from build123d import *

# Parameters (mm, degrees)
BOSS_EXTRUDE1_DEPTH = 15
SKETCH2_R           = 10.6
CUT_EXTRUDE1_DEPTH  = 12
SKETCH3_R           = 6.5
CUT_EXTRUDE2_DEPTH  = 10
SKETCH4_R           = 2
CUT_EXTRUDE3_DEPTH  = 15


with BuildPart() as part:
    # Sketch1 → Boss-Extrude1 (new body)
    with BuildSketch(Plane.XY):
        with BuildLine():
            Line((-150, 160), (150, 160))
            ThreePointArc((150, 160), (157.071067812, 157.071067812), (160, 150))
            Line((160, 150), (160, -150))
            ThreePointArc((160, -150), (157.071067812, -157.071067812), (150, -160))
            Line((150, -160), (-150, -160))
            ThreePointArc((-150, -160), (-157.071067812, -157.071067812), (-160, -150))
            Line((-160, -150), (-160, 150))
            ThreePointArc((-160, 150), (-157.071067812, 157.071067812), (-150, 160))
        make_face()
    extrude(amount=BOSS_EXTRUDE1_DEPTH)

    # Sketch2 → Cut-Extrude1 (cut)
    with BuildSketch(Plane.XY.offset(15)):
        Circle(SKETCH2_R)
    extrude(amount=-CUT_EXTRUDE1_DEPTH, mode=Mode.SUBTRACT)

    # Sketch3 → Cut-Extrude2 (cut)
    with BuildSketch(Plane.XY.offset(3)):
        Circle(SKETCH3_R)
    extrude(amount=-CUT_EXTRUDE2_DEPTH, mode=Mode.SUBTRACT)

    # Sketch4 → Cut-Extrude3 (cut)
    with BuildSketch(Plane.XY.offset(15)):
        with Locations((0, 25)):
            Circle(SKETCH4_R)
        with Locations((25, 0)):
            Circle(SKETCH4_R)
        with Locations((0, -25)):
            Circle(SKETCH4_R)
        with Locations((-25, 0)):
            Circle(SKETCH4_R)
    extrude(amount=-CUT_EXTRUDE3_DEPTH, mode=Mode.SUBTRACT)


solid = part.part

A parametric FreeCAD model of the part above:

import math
import FreeCAD as App
import Part
import Sketcher

V = App.Vector
Q = App.Units.Quantity

doc = App.newDocument("Part")
body = doc.addObject("PartDesign::Body", "Body")

# Sketch on XY plane
sketch1 = body.newObject("Sketcher::SketchObject", "Sketch")
sketch1.AttachmentSupport = (doc.getObject("XY_Plane"), [""])
sketch1.MapMode = "FlatFace"
sketch1.addGeometry(Part.LineSegment(V(150, 160, 0), V(-150, 160, 0)), False)
sketch1.addGeometry(Part.ArcOfCircle(Part.Circle(V(-150, 150, 0), V(0, 0, 1), 10), math.radians(90), math.radians(180)), False)
sketch1.addGeometry(Part.LineSegment(V(-160, 150, 0), V(-160, -150, 0)), False)
sketch1.addGeometry(Part.ArcOfCircle(Part.Circle(V(-150, -150, 0), V(0, 0, 1), 10), math.radians(180), math.radians(270)), False)
sketch1.addGeometry(Part.LineSegment(V(-150, -160, 0), V(150, -160, 0)), False)
sketch1.addGeometry(Part.ArcOfCircle(Part.Circle(V(150, -150, 0), V(0, 0, 1), 10), math.radians(-90), math.radians(0)), False)
sketch1.addGeometry(Part.LineSegment(V(160, -150, 0), V(160, 150, 0)), False)
sketch1.addGeometry(Part.ArcOfCircle(Part.Circle(V(150, 150, 0), V(0, 0, 1), 10), math.radians(0), math.radians(90)), False)
sketch1.addConstraint(Sketcher.Constraint("Tangent", 0, 2, 1, 1))
sketch1.addConstraint(Sketcher.Constraint("Tangent", 1, 2, 2, 1))
sketch1.addConstraint(Sketcher.Constraint("Tangent", 2, 2, 3, 1))
sketch1.addConstraint(Sketcher.Constraint("Tangent", 3, 2, 4, 1))
sketch1.addConstraint(Sketcher.Constraint("Tangent", 4, 2, 5, 1))
sketch1.addConstraint(Sketcher.Constraint("Tangent", 5, 2, 6, 1))
sketch1.addConstraint(Sketcher.Constraint("Tangent", 6, 2, 7, 1))
sketch1.addConstraint(Sketcher.Constraint("Tangent", 7, 2, 0, 1))
sketch1.addConstraint(Sketcher.Constraint("Horizontal", 0))
sketch1.addConstraint(Sketcher.Constraint("Vertical", 2))
sketch1.addConstraint(Sketcher.Constraint("Horizontal", 4))
sketch1.addConstraint(Sketcher.Constraint("Vertical", 6))
sketch1.addConstraint(Sketcher.Constraint("Equal", 1, 3))
sketch1.addConstraint(Sketcher.Constraint("Equal", 3, 5))
sketch1.addConstraint(Sketcher.Constraint("Equal", 5, 7))
sketch1.addConstraint(Sketcher.Constraint("Symmetric", 1, 3, 5, 3, -1, 1))
sketch1.addConstraint(Sketcher.Constraint("Equal", 4, 2))
sketch1.addConstraint(Sketcher.Constraint("Radius", 1, Q("10 mm")))
sketch1.addConstraint(Sketcher.Constraint("DistanceX", 0, 2, 0, 1, Q("300 mm")))
pad1 = body.newObject("PartDesign::Pad", "Pad")
pad1.Profile = sketch1
pad1.Length = 15

# Sketch on XY plane
sketch2 = body.newObject("Sketcher::SketchObject", "Sketch001")
sketch2.AttachmentSupport = (doc.getObject("XY_Plane"), [""])
sketch2.MapMode = "FlatFace"
sketch2.AttachmentOffset = App.Placement(V(0, 0, 15), App.Rotation())
sketch2.addGeometry(Part.Circle(V(0, 0, 0), V(0, 0, 1), 10.6), False)
sketch2.addConstraint(Sketcher.Constraint("Coincident", 0, 3, -1, 1))
sketch2.addConstraint(Sketcher.Constraint("Diameter", 0, Q("21.2 mm")))
pocket1 = body.newObject("PartDesign::Pocket", "Pocket")
pocket1.Profile = sketch2
pocket1.Length = 12

# Sketch on XY plane
sketch3 = body.newObject("Sketcher::SketchObject", "Sketch002")
sketch3.AttachmentSupport = (doc.getObject("XY_Plane"), [""])
sketch3.MapMode = "FlatFace"
sketch3.AttachmentOffset = App.Placement(V(0, 0, 3), App.Rotation())
sketch3.addGeometry(Part.Circle(V(0, 0, 0), V(0, 0, 1), 6.5), False)
sketch3.addConstraint(Sketcher.Constraint("Coincident", 0, 3, -1, 1))
sketch3.addConstraint(Sketcher.Constraint("Diameter", 0, Q("13 mm")))
pocket2 = body.newObject("PartDesign::Pocket", "Pocket001")
pocket2.Profile = sketch3
pocket2.Length = 10

# Sketch on XY plane
sketch4 = body.newObject("Sketcher::SketchObject", "Sketch003")
sketch4.AttachmentSupport = (doc.getObject("XY_Plane"), [""])
sketch4.MapMode = "FlatFace"
sketch4.AttachmentOffset = App.Placement(V(0, 0, 15), App.Rotation())
sketch4.addGeometry(Part.Circle(V(0, 25, 0), V(0, 0, 1), 2), False)
sketch4.addGeometry(Part.Circle(V(25, 0, 0), V(0, 0, 1), 2), False)
sketch4.addGeometry(Part.Circle(V(0, -25, 0), V(0, 0, 1), 2), False)
sketch4.addGeometry(Part.Circle(V(-25, 0, 0), V(0, 0, 1), 2), False)
sketch4.addConstraint(Sketcher.Constraint("Equal", 0, 1))
sketch4.addConstraint(Sketcher.Constraint("Equal", 1, 2))
sketch4.addConstraint(Sketcher.Constraint("Equal", 2, 3))
sketch4.addConstraint(Sketcher.Constraint("Symmetric", 0, 3, 2, 3, -1, 1))
sketch4.addConstraint(Sketcher.Constraint("Symmetric", 1, 3, 3, 3, -1, 1))
sketch4.addConstraint(Sketcher.Constraint("PointOnObject", 0, 3, -2))
sketch4.addConstraint(Sketcher.Constraint("PointOnObject", 1, 3, -1))
sketch4.addConstraint(Sketcher.Constraint("Diameter", 0, Q("4 mm")))
sketch4.addConstraint(Sketcher.Constraint("DistanceY", -1, 1, 0, 3, Q("25 mm")))
sketch4.addConstraint(Sketcher.Constraint("DistanceX", -1, 1, 1, 3, Q("25 mm")))
pocket3 = body.newObject("PartDesign::Pocket", "Pocket002")
pocket3.Profile = sketch4
pocket3.Length = 15

doc.recompute()
